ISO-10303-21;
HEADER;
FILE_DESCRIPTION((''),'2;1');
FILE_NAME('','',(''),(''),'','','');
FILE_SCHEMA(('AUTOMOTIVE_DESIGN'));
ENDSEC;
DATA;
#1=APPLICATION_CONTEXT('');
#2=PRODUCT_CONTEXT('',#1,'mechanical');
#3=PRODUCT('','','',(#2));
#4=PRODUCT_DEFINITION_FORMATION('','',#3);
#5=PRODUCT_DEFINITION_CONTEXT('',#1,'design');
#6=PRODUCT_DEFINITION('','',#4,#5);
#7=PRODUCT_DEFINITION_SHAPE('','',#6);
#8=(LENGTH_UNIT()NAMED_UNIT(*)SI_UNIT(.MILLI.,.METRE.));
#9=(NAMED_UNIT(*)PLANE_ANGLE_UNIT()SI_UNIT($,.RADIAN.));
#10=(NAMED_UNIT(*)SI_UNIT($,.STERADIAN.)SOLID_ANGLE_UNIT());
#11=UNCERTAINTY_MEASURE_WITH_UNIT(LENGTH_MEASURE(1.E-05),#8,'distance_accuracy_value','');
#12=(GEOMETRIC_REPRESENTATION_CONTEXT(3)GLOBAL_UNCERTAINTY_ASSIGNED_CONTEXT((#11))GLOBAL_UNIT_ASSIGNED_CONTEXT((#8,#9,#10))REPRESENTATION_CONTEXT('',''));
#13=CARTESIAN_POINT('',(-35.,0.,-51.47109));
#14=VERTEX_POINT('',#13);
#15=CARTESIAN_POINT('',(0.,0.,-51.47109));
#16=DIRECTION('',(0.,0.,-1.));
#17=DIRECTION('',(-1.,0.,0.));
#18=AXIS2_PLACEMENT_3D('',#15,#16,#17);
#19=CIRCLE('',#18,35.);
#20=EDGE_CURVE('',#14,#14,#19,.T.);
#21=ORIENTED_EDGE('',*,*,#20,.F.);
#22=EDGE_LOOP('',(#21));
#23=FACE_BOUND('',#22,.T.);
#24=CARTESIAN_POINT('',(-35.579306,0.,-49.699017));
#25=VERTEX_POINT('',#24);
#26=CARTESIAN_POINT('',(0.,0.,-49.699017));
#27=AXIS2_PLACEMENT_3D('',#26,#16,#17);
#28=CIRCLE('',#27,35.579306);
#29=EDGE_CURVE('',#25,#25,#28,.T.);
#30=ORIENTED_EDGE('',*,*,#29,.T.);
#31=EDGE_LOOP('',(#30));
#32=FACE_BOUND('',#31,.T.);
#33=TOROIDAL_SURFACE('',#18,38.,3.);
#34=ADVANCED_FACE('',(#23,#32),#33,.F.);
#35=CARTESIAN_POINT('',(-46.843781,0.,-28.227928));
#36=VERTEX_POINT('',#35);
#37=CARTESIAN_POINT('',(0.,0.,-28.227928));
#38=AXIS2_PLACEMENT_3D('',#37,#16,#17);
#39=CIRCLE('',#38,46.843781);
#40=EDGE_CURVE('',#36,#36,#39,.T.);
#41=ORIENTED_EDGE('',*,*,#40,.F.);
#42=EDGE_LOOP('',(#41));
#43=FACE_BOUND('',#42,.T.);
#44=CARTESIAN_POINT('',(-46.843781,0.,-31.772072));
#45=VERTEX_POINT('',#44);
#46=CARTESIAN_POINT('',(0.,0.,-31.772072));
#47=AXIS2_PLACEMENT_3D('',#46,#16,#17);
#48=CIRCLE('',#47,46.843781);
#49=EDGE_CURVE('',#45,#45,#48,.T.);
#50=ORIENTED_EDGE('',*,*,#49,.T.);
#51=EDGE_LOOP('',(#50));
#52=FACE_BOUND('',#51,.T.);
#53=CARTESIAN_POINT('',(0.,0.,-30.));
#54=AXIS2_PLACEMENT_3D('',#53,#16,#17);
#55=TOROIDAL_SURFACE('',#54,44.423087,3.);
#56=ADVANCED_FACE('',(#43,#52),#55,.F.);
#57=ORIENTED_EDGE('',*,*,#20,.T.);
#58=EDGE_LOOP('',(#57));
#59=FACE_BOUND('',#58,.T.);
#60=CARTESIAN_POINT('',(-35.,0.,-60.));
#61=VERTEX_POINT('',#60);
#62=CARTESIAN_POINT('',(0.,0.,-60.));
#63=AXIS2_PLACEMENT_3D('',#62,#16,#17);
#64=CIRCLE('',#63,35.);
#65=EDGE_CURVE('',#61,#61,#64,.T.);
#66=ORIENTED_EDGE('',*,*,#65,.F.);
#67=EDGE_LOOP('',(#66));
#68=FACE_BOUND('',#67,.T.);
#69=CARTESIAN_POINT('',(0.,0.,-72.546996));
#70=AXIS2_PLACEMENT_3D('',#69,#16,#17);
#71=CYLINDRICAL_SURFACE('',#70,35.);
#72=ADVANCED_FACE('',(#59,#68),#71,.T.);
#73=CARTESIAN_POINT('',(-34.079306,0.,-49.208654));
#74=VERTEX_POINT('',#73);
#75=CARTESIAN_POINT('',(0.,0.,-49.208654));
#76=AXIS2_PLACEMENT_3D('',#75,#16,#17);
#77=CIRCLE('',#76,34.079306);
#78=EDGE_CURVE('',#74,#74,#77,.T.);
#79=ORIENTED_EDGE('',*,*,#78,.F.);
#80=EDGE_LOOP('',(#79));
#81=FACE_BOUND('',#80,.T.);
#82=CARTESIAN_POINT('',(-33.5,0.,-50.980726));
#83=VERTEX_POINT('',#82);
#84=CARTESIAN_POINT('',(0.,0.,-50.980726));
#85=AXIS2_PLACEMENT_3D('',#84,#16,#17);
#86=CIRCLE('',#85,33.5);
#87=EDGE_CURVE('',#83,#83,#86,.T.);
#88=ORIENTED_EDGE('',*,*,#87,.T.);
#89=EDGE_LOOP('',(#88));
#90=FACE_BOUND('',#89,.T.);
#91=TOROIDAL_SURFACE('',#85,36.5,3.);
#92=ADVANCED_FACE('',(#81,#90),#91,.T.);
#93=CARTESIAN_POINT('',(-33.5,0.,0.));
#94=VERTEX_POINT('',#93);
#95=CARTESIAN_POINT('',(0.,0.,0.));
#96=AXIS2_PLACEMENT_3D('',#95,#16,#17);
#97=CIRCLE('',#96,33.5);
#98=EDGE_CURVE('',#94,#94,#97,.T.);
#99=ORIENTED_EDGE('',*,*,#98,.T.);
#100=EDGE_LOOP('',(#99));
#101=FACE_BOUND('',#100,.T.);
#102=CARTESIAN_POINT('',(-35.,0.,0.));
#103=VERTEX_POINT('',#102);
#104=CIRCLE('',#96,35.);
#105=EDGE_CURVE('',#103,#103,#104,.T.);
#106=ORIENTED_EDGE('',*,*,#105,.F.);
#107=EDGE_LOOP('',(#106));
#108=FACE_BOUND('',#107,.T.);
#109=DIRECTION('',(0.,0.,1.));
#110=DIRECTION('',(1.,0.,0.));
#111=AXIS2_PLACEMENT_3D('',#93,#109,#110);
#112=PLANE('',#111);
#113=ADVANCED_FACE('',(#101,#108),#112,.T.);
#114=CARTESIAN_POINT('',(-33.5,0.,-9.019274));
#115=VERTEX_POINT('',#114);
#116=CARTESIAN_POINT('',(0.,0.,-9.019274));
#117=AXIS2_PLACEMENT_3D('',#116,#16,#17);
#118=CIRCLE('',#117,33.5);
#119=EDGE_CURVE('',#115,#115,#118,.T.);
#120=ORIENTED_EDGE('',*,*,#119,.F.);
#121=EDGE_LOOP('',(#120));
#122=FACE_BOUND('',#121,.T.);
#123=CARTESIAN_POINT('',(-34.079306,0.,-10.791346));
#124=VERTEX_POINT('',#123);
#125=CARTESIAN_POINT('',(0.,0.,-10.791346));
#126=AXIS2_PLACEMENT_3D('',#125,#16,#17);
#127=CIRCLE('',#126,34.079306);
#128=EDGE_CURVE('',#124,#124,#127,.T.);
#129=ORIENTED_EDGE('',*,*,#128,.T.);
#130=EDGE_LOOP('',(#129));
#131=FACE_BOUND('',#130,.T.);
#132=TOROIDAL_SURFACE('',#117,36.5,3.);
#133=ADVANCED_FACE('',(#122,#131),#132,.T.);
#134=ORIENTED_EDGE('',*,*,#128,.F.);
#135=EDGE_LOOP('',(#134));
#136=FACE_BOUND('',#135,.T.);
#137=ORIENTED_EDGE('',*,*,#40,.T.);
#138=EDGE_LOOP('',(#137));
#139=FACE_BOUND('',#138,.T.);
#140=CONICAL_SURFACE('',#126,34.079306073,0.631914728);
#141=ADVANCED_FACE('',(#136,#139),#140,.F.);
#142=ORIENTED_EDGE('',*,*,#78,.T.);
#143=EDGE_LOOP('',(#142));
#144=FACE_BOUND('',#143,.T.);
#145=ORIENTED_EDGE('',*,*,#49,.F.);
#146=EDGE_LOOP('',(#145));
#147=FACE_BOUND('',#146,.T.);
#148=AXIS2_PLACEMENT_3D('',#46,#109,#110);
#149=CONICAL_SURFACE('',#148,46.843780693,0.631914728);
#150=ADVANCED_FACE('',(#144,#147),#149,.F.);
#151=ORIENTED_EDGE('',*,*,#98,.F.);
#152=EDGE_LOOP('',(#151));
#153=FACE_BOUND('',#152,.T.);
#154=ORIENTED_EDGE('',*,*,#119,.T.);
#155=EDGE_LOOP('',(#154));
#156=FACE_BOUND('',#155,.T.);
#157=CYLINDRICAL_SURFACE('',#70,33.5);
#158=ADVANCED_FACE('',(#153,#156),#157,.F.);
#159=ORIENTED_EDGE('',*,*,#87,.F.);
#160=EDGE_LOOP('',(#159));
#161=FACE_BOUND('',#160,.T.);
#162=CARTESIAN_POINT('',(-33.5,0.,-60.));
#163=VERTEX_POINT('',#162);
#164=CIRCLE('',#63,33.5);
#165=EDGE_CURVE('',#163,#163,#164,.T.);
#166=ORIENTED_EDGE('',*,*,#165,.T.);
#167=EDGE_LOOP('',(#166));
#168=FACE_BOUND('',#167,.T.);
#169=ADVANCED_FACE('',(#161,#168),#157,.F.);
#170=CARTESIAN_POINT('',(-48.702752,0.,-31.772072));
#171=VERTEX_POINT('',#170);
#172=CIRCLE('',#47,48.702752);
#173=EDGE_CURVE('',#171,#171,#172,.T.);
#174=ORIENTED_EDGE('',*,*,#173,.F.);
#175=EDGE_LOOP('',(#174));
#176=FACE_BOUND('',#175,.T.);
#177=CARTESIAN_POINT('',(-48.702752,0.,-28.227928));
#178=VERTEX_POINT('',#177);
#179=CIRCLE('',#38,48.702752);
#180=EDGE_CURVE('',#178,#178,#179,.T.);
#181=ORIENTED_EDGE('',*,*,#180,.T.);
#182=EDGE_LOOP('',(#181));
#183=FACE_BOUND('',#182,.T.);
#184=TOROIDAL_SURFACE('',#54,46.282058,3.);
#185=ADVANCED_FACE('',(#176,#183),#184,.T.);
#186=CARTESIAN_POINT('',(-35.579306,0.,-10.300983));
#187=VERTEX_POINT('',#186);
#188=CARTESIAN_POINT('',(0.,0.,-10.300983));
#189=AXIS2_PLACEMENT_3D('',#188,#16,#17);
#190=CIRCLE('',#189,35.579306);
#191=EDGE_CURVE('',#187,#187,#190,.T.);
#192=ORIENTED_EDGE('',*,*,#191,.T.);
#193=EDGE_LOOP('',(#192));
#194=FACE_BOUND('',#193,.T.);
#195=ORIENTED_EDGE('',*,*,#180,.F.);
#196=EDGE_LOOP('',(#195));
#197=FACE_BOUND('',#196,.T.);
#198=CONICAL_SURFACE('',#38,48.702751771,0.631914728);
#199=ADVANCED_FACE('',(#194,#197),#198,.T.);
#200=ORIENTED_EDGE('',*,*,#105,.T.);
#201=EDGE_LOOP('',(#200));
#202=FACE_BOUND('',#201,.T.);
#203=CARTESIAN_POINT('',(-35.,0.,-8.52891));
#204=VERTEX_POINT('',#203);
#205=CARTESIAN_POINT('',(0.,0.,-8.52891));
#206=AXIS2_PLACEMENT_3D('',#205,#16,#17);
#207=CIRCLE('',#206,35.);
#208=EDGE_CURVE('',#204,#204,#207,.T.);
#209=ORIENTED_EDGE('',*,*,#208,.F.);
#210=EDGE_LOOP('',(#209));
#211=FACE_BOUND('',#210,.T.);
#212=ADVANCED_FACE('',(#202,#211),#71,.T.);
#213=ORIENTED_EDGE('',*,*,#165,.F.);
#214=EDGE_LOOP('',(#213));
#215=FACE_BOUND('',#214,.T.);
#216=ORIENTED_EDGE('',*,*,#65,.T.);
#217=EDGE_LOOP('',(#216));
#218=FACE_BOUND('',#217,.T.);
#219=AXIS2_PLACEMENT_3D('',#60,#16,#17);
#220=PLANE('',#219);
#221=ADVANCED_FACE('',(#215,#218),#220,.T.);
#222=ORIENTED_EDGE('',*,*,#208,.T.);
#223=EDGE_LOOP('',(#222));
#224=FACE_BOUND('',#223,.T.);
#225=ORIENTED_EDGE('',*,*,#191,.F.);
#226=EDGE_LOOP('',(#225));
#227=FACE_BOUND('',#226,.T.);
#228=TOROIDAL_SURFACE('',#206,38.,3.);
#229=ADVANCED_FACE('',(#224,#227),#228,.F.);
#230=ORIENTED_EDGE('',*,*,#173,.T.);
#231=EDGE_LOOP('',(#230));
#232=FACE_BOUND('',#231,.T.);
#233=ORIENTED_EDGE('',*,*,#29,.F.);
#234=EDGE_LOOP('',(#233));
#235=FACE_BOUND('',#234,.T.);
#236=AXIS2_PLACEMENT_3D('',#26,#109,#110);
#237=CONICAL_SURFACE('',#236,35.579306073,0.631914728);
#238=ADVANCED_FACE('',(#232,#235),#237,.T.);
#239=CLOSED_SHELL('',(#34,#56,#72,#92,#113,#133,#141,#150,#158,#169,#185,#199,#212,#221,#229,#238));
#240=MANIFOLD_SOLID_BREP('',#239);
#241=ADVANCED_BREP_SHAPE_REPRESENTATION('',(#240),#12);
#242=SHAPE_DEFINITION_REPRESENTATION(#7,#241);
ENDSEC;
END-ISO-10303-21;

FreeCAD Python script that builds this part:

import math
import FreeCAD as App
import Part
import Sketcher

doc = App.newDocument("Part")
body = doc.addObject("PartDesign::Body", "Body")

# Sketch on XZ plane
sketch1 = body.newObject("Sketcher::SketchObject", "Sketch")
sketch1.AttachmentSupport = (doc.getObject("XZ_Plane"), [""])
sketch1.MapMode = "FlatFace"
sketch1.addGeometry(Part.LineSegment(App.Vector(-35, -8.5, 0), App.Vector(-35, 0, 0)), False)
sketch1.addGeometry(Part.LineSegment(App.Vector(-35, 0, 0), App.Vector(-33.5, 0, 0)), False)
sketch1.addGeometry(Part.LineSegment(App.Vector(-33.5, 0, 0), App.Vector(-33.5, -9, 0)), False)
sketch1.addGeometry(Part.ArcOfCircle(Part.Circle(App.Vector(-36.5, -9, 0), App.Vector(0, 0, 1), 3), math.radians(-36), math.radians(0)), False)
sketch1.addGeometry(Part.LineSegment(App.Vector(-34.1, -10.8, 0), App.Vector(-46.8, -28.2, 0)), False)
sketch1.addGeometry(Part.ArcOfCircle(Part.Circle(App.Vector(-44.4, -30, 0), App.Vector(0, 0, 1), 3), math.radians(144), math.radians(216)), False)
sketch1.addGeometry(Part.LineSegment(App.Vector(-46.8, -31.8, 0), App.Vector(-34.1, -49.2, 0)), False)
sketch1.addGeometry(Part.ArcOfCircle(Part.Circle(App.Vector(-36.5, -51, 0), App.Vector(0, 0, 1), 3), math.radians(0), math.radians(36)), False)
sketch1.addGeometry(Part.LineSegment(App.Vector(-33.5, -51, 0), App.Vector(-33.5, -60, 0)), False)
sketch1.addGeometry(Part.LineSegment(App.Vector(-33.5, -60, 0), App.Vector(-35, -60, 0)), False)
sketch1.addGeometry(Part.LineSegment(App.Vector(-35, -60, 0), App.Vector(-35, -51.5, 0)), False)
sketch1.addGeometry(Part.ArcOfCircle(Part.Circle(App.Vector(-38, -51.5, 0), App.Vector(0, 0, 1), 3), math.radians(0), math.radians(36)), False)
sketch1.addGeometry(Part.LineSegment(App.Vector(-35.6, -49.7, 0), App.Vector(-48.7, -31.8, 0)), False)
sketch1.addGeometry(Part.ArcOfCircle(Part.Circle(App.Vector(-46.3, -30, 0), App.Vector(0, 0, 1), 3), math.radians(144), math.radians(216)), False)
sketch1.addGeometry(Part.LineSegment(App.Vector(-48.7, -28.2, 0), App.Vector(-35.6, -10.3, 0)), False)
sketch1.addGeometry(Part.ArcOfCircle(Part.Circle(App.Vector(-38, -8.5, 0), App.Vector(0, 0, 1), 3), math.radians(-36), math.radians(0)), False)
sketch1.addConstraint(Sketcher.Constraint("Coincident", 0, 2, 1, 1))
sketch1.addConstraint(Sketcher.Constraint("Coincident", 1, 2, 2, 1))
sketch1.addConstraint(Sketcher.Constraint("Tangent", 2, 2, 3, 2))
sketch1.addConstraint(Sketcher.Constraint("Tangent", 3, 1, 4, 1))
sketch1.addConstraint(Sketcher.Constraint("Tangent", 4, 2, 5, 1))
sketch1.addConstraint(Sketcher.Constraint("Tangent", 5, 2, 6, 1))
sketch1.addConstraint(Sketcher.Constraint("Tangent", 6, 2, 7, 2))
sketch1.addConstraint(Sketcher.Constraint("Tangent", 7, 1, 8, 1))
sketch1.addConstraint(Sketcher.Constraint("Coincident", 8, 2, 9, 1))
sketch1.addConstraint(Sketcher.Constraint("Coincident", 9, 2, 10, 1))
sketch1.addConstraint(Sketcher.Constraint("Tangent", 10, 2, 11, 1))
sketch1.addConstraint(Sketcher.Constraint("Tangent", 11, 2, 12, 1))
sketch1.addConstraint(Sketcher.Constraint("Tangent", 12, 2, 13, 2))
sketch1.addConstraint(Sketcher.Constraint("Tangent", 13, 1, 14, 1))
sketch1.addConstraint(Sketcher.Constraint("Tangent", 14, 2, 15, 1))
sketch1.addConstraint(Sketcher.Constraint("Tangent", 15, 2, 0, 1))
sketch1.addConstraint(Sketcher.Constraint("Vertical", 0))
sketch1.addConstraint(Sketcher.Constraint("Horizontal", 1))
sketch1.addConstraint(Sketcher.Constraint("Vertical", 2))
sketch1.addConstraint(Sketcher.Constraint("Vertical", 8))
sketch1.addConstraint(Sketcher.Constraint("Horizontal", 9))
sketch1.addConstraint(Sketcher.Constraint("Vertical", 10))
sketch1.addConstraint(Sketcher.Constraint("Equal", 3, 5))
sketch1.addConstraint(Sketcher.Constraint("Equal", 5, 7))
sketch1.addConstraint(Sketcher.Constraint("Equal", 7, 11))
sketch1.addConstraint(Sketcher.Constraint("Equal", 11, 13))
sketch1.addConstraint(Sketcher.Constraint("Equal", 13, 15))
sketch1.addConstraint(Sketcher.Constraint("PointOnObject", 0, 2, -1))
sketch1.addConstraint(Sketcher.Constraint("Parallel", 6, 12))
sketch1.addConstraint(Sketcher.Constraint("Parallel", 4, 14))
sketch1.addConstraint(Sketcher.Constraint("Horizontal", 5, 3, 13, 3))
sketch1.addConstraint(Sketcher.Constraint("Vertical", 3, 3, 7, 3))
sketch1.addConstraint(Sketcher.Constraint("Vertical", 11, 3, 15, 3))
sketch1.addConstraint(Sketcher.Constraint("Vertical", 4, 2, 5, 2))
sketch1.addConstraint(Sketcher.Constraint("Equal", 2, 8))
sketch1.addConstraint(Sketcher.Constraint("Radius", 3, 3.0))
sketch1.addConstraint(Sketcher.Constraint("DistanceX", 1, 1, 1, 2, 1.5))
sketch1.addConstraint(Sketcher.Constraint("DistanceY", 5, 3, -1, 1, 30.0))
sketch1.addConstraint(Sketcher.Constraint("DistanceX", 11, 3, -1, 1, 38.0))
sketch1.addConstraint(Sketcher.Constraint("Distance", 4, 21.6094))
sketch1.addConstraint(Sketcher.Constraint("DistanceY", 0, 1, 0, 2, 8.52891))
sketch1.addConstraint(Sketcher.Constraint("DistanceY", 2, 2, 2, 1, 9.019274))
revolution = body.newObject("PartDesign::Revolution", "Revolution")
revolution.Profile = sketch1
revolution.ReferenceAxis = (sketch1, ["V_Axis"])
revolution.Angle = 360

doc.recompute()
